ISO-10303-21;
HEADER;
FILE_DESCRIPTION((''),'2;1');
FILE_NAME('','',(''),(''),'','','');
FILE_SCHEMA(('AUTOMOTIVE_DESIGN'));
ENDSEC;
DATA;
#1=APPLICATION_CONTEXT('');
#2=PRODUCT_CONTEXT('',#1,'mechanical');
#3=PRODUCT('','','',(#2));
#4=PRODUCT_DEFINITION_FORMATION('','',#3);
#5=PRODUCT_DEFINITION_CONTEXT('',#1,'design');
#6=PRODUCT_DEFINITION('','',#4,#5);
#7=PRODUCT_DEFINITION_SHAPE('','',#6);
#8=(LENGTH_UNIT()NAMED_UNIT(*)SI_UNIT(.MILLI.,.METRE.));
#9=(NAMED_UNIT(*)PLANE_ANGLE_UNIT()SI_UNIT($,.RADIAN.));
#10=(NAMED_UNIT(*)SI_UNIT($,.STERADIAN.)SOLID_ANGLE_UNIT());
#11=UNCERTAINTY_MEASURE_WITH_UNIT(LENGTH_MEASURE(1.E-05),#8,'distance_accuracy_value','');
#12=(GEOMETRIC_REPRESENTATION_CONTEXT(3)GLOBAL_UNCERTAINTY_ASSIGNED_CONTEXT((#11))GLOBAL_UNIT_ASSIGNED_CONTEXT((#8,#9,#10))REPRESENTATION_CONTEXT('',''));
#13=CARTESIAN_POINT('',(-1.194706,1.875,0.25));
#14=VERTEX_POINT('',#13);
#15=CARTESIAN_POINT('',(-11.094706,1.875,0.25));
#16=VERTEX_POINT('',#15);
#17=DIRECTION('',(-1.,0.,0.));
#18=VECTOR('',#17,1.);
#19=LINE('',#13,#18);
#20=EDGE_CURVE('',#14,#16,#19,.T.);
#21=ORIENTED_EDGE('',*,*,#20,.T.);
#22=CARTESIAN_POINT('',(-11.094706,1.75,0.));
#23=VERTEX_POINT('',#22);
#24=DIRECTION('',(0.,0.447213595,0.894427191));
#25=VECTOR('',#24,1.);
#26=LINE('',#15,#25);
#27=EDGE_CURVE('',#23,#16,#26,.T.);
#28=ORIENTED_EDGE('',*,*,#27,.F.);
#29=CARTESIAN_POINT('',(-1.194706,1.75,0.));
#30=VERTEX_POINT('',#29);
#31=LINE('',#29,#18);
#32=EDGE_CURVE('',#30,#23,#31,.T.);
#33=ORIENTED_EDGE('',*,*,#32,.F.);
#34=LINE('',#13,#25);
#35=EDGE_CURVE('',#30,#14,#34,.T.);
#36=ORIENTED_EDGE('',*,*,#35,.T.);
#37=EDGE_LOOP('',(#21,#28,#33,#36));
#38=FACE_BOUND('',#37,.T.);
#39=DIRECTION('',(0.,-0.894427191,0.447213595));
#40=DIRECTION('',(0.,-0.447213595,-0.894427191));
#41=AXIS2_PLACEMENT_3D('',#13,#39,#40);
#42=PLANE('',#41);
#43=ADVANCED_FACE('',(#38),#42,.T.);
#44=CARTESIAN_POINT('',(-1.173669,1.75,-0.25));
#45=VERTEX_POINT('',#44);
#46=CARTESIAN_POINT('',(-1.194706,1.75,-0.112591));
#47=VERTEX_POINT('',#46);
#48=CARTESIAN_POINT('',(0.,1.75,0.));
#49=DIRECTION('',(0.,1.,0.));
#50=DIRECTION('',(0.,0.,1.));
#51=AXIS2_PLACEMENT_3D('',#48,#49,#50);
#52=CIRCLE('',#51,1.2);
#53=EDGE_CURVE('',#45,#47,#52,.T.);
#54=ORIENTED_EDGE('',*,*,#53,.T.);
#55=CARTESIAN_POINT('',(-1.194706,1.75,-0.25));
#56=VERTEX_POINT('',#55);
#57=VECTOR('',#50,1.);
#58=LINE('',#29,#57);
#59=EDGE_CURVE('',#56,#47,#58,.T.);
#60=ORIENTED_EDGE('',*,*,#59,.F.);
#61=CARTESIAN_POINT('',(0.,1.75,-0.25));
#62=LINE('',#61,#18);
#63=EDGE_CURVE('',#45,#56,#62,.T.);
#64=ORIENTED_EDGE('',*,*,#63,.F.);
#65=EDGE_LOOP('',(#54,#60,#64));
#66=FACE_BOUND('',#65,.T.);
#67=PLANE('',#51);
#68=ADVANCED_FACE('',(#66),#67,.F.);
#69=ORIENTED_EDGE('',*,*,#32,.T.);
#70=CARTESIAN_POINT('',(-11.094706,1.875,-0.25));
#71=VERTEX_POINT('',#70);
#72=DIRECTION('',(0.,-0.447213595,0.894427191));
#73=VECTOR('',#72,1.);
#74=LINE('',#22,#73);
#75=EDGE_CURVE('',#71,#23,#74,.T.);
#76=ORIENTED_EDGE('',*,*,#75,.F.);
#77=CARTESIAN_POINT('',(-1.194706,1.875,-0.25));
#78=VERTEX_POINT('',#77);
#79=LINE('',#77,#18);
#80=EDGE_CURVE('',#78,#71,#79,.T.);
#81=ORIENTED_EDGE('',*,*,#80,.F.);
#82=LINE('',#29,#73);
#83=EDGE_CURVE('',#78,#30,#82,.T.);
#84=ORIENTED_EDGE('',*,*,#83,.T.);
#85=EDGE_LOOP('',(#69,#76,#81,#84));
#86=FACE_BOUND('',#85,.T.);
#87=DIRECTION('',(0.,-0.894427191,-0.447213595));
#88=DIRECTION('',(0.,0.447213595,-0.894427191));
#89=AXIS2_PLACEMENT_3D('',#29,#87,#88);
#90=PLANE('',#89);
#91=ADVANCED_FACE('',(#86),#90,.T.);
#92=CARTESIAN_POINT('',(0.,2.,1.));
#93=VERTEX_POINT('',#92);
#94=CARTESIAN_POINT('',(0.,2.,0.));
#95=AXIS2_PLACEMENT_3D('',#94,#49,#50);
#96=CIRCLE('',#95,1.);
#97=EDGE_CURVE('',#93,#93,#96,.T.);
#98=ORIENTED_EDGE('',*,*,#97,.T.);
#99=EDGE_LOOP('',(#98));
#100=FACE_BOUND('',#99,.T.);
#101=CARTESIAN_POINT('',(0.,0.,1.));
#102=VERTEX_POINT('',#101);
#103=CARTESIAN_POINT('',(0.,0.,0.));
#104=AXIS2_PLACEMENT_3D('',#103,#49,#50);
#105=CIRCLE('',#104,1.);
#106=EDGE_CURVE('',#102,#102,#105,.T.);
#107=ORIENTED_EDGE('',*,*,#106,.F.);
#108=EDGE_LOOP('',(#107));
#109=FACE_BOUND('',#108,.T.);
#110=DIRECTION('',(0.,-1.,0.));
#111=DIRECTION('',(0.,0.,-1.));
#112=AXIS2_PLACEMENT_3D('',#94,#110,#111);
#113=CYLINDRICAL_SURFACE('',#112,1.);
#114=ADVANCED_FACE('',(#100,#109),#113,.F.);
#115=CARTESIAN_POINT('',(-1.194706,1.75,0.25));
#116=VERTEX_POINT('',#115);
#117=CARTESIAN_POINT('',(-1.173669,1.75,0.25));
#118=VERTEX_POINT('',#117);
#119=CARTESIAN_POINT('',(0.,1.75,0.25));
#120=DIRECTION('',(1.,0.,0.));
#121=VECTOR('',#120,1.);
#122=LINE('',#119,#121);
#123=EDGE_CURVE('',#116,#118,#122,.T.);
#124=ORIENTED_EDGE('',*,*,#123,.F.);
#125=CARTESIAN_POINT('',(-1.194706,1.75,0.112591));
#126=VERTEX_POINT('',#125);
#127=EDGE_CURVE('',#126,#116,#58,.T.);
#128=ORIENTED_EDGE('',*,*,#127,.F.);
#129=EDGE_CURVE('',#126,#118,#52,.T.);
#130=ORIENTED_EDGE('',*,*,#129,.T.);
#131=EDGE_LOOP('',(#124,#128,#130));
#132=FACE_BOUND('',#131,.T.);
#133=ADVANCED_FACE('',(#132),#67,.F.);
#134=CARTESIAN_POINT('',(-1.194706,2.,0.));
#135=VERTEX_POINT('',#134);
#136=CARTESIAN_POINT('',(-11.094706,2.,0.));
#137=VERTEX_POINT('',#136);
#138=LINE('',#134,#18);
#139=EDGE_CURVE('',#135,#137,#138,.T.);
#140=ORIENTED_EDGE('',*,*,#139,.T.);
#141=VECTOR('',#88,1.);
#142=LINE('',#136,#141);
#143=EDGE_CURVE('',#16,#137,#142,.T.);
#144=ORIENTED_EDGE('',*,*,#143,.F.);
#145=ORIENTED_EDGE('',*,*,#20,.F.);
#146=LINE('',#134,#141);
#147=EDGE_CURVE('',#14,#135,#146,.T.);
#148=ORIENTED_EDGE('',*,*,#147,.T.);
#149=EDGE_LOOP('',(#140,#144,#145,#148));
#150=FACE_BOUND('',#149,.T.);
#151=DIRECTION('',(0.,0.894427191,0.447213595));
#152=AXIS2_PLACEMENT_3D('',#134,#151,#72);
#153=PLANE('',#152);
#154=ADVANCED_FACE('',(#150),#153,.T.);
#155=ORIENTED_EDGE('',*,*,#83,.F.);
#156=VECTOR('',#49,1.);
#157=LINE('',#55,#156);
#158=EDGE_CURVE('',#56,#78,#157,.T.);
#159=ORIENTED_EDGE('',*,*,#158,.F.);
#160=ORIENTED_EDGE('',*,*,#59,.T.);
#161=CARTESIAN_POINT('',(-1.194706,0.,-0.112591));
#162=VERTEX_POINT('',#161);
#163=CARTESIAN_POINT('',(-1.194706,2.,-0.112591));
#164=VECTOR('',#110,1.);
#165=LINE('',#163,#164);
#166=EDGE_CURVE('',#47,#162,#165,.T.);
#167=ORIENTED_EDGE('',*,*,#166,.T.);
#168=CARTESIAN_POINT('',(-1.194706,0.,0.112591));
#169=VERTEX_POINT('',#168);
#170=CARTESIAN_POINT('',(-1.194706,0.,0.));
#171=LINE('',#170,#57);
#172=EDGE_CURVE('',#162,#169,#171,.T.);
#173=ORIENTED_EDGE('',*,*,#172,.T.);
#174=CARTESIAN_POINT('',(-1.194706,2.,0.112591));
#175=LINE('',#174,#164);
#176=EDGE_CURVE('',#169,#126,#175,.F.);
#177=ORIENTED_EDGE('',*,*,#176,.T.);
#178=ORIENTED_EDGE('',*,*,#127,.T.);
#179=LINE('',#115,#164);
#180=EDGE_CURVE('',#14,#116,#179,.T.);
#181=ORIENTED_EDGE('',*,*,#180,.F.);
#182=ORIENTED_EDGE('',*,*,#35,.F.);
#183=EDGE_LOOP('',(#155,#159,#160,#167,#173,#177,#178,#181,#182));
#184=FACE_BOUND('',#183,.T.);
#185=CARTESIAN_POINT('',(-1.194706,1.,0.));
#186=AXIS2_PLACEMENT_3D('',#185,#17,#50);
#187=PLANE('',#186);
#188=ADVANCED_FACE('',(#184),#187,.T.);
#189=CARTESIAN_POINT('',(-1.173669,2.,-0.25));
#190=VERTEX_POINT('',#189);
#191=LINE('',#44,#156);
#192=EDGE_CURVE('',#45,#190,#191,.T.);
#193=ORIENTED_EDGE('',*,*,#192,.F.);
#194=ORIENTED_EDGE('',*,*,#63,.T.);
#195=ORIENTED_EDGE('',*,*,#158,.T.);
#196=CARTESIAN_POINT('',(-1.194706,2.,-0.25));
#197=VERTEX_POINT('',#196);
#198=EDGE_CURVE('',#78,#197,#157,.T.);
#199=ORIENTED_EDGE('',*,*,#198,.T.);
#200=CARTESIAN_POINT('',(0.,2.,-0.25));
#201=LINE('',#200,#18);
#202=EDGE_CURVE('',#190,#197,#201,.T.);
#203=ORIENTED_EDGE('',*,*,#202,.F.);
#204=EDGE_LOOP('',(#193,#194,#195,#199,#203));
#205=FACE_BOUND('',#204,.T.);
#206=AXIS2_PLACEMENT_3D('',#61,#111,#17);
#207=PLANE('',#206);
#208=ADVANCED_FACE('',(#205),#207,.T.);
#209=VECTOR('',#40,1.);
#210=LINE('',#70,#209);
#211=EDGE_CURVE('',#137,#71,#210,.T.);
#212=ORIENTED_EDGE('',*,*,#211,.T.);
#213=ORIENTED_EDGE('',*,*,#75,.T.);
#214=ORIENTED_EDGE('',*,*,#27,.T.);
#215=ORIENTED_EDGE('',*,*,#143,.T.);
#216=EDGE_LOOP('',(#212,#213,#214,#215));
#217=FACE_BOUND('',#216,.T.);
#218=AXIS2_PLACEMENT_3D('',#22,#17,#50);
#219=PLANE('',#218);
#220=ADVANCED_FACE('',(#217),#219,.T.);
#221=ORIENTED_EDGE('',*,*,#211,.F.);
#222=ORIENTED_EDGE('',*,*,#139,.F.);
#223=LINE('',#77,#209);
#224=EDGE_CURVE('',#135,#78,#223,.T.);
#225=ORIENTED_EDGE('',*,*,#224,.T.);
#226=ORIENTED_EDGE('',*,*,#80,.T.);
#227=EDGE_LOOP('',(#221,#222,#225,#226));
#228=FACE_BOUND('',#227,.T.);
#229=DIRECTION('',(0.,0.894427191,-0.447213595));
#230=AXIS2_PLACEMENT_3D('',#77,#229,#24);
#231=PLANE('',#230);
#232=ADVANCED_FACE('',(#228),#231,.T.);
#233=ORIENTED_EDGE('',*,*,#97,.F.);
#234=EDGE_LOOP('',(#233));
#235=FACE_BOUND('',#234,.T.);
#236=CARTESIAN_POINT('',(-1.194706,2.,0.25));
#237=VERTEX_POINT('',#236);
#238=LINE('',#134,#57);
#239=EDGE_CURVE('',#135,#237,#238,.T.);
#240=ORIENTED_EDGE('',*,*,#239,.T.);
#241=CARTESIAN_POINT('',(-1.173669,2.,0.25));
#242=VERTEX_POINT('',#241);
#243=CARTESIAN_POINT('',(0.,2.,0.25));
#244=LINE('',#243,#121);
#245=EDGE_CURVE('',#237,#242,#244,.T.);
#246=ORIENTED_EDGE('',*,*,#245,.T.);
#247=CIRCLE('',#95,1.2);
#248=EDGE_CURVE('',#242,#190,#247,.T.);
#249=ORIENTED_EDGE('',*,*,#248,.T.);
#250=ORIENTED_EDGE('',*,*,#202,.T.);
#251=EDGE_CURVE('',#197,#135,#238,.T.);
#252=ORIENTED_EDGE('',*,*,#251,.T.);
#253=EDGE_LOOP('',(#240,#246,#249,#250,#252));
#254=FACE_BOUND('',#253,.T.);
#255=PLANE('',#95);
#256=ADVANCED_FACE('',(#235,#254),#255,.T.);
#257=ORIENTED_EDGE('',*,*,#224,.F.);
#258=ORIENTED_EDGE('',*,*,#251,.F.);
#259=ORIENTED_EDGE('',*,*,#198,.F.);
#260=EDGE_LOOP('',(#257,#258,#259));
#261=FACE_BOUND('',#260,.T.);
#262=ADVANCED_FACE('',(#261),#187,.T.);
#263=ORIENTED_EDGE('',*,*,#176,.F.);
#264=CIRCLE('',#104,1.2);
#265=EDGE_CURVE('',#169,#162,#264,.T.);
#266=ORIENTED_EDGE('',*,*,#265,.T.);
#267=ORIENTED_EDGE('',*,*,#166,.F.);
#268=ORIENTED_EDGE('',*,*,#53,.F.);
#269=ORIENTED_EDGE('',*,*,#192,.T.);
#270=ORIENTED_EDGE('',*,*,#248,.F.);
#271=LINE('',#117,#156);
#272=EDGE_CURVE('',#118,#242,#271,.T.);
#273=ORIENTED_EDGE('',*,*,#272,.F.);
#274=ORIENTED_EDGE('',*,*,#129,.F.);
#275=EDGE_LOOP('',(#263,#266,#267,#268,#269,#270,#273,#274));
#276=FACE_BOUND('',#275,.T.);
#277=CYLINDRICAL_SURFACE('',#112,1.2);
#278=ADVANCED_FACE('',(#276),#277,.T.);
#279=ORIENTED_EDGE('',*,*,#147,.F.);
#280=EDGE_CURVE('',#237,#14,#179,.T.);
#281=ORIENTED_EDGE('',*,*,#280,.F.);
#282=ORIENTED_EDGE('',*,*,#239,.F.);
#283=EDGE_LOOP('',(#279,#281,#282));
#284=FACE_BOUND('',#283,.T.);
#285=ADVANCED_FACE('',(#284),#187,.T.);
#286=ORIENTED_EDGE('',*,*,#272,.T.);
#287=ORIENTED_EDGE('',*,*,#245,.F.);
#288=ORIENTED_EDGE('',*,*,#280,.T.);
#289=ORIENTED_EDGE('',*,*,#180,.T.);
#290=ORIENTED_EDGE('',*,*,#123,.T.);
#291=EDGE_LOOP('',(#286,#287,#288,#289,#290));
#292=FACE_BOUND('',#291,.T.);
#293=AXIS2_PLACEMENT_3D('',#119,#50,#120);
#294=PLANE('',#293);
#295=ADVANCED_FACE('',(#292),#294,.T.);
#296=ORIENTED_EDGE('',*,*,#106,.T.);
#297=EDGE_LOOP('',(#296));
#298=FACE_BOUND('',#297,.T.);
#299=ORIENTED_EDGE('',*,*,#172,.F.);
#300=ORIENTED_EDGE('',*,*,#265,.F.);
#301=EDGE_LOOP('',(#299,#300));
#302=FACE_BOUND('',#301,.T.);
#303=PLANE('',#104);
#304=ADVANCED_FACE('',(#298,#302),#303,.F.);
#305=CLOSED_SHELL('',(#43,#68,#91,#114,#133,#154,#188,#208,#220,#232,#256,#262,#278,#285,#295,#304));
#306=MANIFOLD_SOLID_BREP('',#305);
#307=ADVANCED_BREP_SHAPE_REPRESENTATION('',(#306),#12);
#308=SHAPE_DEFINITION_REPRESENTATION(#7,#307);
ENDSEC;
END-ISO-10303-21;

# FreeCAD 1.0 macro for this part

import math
import FreeCAD as App
import Part
import Sketcher
Q = App.Units.Quantity


def add_polygon(sketch, points):
    """Adds a closed chain of lines whose ends are joined by coincident constraints."""
    first, n = sketch.GeometryCount, len(points)
    for a, b in zip(points, points[1:] + points[:1]):
        sketch.addGeometry(Part.LineSegment(App.Vector(*a, 0), App.Vector(*b, 0)), False)
    for i in range(n):
        sketch.addConstraint(Sketcher.Constraint("Coincident", first + i, 2, first + (i + 1) % n, 1))

doc = App.newDocument("Part")
params = doc.addObject("Spreadsheet::Sheet", "Params")
for row, (alias, value) in enumerate([
    ("sketch1_diameter", "2 mm"),
    ("sketch1_diameter2", "2.4 mm"),
    ("pad1_length", "2 mm"),
    ("sketch2_radius", "1.2 mm"),
    ("sketch2_height", "0.5 mm"),
    ("pad2_length", "0.25 mm"),
    ("pocket1_length", "9.9 mm"),
], start=1):
    params.set(f"A{row}", alias)
    params.set(f"B{row}", "=" + value)
    params.setAlias(f"B{row}", alias)

body = doc.addObject("PartDesign::Body", "Body")

sketch1 = body.newObject("Sketcher::SketchObject", "Sketch")
sketch1.AttachmentSupport = (doc.getObject("XZ_Plane"), [""])
sketch1.MapMode = "FlatFace"
sketch1.addGeometry(Part.Circle(App.Vector(0, 0, 0), App.Vector(0, 0, 1), 1.2), False)
sketch1.addGeometry(Part.Circle(App.Vector(0, 0, 0), App.Vector(0, 0, 1), 1), False)
sketch1.addConstraint(Sketcher.Constraint("Coincident", 0, 3, -1, 1))
sketch1.addConstraint(Sketcher.Constraint("Coincident", 1, 3, -1, 1))
sketch1.addConstraint(Sketcher.Constraint("Diameter", 1, Q("2 mm")))
sketch1.addConstraint(Sketcher.Constraint("Diameter", 0, Q("2.4 mm")))
sketch1.setExpression("Constraints[2]", "Params.sketch1_diameter")
sketch1.setExpression("Constraints[3]", "Params.sketch1_diameter2")
pad1 = body.newObject("PartDesign::Pad", "Pad")
pad1.Profile = sketch1
pad1.setExpression("Length", "Params.pad1_length")
pad1.Reversed = True

sketch2 = body.newObject("Sketcher::SketchObject", "Sketch001")
sketch2.AttachmentSupport = (doc.getObject("XZ_Plane"), [""])
sketch2.MapMode = "FlatFace"
sketch2.AttachmentOffset = App.Placement(App.Vector(0, 0, -2), App.Rotation())
sketch2.addGeometry(Part.LineSegment(App.Vector(-11.1, 0.2, 0), App.Vector(-1.2, 0.2, 0)), False)
sketch2.addGeometry(Part.ArcOfCircle(Part.Circle(App.Vector(0, 0, 0), App.Vector(0, 0, 1), 1.2), math.radians(168), math.radians(192)), False)
sketch2.addGeometry(Part.LineSegment(App.Vector(-1.2, -0.2, 0), App.Vector(-11.1, -0.2, 0)), False)
sketch2.addGeometry(Part.LineSegment(App.Vector(-11.1, -0.2, 0), App.Vector(-11.1, 0.2, 0)), False)
sketch2.addConstraint(Sketcher.Constraint("Coincident", 0, 2, 1, 1))
sketch2.addConstraint(Sketcher.Constraint("Coincident", 1, 2, 2, 1))
sketch2.addConstraint(Sketcher.Constraint("Coincident", 2, 2, 3, 1))
sketch2.addConstraint(Sketcher.Constraint("Coincident", 3, 2, 0, 1))
sketch2.addConstraint(Sketcher.Constraint("Horizontal", 0))
sketch2.addConstraint(Sketcher.Constraint("Horizontal", 2))
sketch2.addConstraint(Sketcher.Constraint("Vertical", 3))
sketch2.addConstraint(Sketcher.Constraint("Coincident", 1, 3, -1, 1))
sketch2.addConstraint(Sketcher.Constraint("Vertical", 0, 2, 1, 2))
sketch2.addConstraint(Sketcher.Constraint("Radius", 1, Q("1.2 mm")))
sketch2.addConstraint(Sketcher.Constraint("DistanceY", 3, 1, 3, 2, Q("0.5 mm")))
sketch2.addConstraint(Sketcher.Constraint("DistanceX", 0, 1, 0, 2, Q("9.921037 mm")))
sketch2.setExpression("Constraints[9]", "Params.sketch2_radius")
sketch2.setExpression("Constraints[10]", "Params.sketch2_height")
pad2 = body.newObject("PartDesign::Pad", "Pad001")
pad2.Profile = sketch2
pad2.setExpression("Length", "Params.pad2_length")

sketch3 = body.newObject("Sketcher::SketchObject", "Sketch002")
sketch3.AttachmentSupport = (doc.getObject("YZ_Plane"), [""])
sketch3.MapMode = "FlatFace"
sketch3.AttachmentOffset = App.Placement(App.Vector(0, 0, -11.094706), App.Rotation())
add_polygon(sketch3, [(4.27, -3.47), (-2.27, -3.47), (-2.27, 3.47), (4.27, 3.47)])
add_polygon(sketch3, [(1.75, 0), (1.88, -0.25), (2, 0), (1.88, 0.25)])
sketch3.addConstraint(Sketcher.Constraint("Horizontal", 0))
sketch3.addConstraint(Sketcher.Constraint("Vertical", 1))
sketch3.addConstraint(Sketcher.Constraint("Horizontal", 2))
sketch3.addConstraint(Sketcher.Constraint("Vertical", 3))
sketch3.addConstraint(Sketcher.Constraint("Symmetric", 4, 2, 6, 2, -1))
sketch3.addConstraint(Sketcher.Constraint("PointOnObject", 5, 2, -1))
sketch3.addConstraint(Sketcher.Constraint("PointOnObject", 7, 2, -1))
sketch3.addConstraint(Sketcher.Constraint("Parallel", 4, 6))
sketch3.addConstraint(Sketcher.Constraint("DistanceX", -1, 1, 5, 2, Q("2 mm")))
sketch3.addConstraint(Sketcher.Constraint("DistanceY", 4, 2, 6, 2, Q("0.5 mm")))
sketch3.addConstraint(Sketcher.Constraint("DistanceX", 0, 2, 0, 1, Q("6.538 mm")))
sketch3.addConstraint(Sketcher.Constraint("DistanceY", 1, 1, 1, 2, Q("6.938 mm")))
sketch3.addConstraint(Sketcher.Constraint("DistanceX", -1, 1, 7, 2, Q("1.75 mm")))
sketch3.addConstraint(Sketcher.Constraint("DistanceX", 0, 2, -1, 1, Q("2.269 mm")))
sketch3.addConstraint(Sketcher.Constraint("DistanceY", 0, 2, -1, 1, Q("3.469 mm")))
pocket1 = body.newObject("PartDesign::Pocket", "Pocket")
pocket1.Profile = sketch3
pocket1.setExpression("Length", "Params.pocket1_length")
pocket1.Reversed = True

doc.recompute()
